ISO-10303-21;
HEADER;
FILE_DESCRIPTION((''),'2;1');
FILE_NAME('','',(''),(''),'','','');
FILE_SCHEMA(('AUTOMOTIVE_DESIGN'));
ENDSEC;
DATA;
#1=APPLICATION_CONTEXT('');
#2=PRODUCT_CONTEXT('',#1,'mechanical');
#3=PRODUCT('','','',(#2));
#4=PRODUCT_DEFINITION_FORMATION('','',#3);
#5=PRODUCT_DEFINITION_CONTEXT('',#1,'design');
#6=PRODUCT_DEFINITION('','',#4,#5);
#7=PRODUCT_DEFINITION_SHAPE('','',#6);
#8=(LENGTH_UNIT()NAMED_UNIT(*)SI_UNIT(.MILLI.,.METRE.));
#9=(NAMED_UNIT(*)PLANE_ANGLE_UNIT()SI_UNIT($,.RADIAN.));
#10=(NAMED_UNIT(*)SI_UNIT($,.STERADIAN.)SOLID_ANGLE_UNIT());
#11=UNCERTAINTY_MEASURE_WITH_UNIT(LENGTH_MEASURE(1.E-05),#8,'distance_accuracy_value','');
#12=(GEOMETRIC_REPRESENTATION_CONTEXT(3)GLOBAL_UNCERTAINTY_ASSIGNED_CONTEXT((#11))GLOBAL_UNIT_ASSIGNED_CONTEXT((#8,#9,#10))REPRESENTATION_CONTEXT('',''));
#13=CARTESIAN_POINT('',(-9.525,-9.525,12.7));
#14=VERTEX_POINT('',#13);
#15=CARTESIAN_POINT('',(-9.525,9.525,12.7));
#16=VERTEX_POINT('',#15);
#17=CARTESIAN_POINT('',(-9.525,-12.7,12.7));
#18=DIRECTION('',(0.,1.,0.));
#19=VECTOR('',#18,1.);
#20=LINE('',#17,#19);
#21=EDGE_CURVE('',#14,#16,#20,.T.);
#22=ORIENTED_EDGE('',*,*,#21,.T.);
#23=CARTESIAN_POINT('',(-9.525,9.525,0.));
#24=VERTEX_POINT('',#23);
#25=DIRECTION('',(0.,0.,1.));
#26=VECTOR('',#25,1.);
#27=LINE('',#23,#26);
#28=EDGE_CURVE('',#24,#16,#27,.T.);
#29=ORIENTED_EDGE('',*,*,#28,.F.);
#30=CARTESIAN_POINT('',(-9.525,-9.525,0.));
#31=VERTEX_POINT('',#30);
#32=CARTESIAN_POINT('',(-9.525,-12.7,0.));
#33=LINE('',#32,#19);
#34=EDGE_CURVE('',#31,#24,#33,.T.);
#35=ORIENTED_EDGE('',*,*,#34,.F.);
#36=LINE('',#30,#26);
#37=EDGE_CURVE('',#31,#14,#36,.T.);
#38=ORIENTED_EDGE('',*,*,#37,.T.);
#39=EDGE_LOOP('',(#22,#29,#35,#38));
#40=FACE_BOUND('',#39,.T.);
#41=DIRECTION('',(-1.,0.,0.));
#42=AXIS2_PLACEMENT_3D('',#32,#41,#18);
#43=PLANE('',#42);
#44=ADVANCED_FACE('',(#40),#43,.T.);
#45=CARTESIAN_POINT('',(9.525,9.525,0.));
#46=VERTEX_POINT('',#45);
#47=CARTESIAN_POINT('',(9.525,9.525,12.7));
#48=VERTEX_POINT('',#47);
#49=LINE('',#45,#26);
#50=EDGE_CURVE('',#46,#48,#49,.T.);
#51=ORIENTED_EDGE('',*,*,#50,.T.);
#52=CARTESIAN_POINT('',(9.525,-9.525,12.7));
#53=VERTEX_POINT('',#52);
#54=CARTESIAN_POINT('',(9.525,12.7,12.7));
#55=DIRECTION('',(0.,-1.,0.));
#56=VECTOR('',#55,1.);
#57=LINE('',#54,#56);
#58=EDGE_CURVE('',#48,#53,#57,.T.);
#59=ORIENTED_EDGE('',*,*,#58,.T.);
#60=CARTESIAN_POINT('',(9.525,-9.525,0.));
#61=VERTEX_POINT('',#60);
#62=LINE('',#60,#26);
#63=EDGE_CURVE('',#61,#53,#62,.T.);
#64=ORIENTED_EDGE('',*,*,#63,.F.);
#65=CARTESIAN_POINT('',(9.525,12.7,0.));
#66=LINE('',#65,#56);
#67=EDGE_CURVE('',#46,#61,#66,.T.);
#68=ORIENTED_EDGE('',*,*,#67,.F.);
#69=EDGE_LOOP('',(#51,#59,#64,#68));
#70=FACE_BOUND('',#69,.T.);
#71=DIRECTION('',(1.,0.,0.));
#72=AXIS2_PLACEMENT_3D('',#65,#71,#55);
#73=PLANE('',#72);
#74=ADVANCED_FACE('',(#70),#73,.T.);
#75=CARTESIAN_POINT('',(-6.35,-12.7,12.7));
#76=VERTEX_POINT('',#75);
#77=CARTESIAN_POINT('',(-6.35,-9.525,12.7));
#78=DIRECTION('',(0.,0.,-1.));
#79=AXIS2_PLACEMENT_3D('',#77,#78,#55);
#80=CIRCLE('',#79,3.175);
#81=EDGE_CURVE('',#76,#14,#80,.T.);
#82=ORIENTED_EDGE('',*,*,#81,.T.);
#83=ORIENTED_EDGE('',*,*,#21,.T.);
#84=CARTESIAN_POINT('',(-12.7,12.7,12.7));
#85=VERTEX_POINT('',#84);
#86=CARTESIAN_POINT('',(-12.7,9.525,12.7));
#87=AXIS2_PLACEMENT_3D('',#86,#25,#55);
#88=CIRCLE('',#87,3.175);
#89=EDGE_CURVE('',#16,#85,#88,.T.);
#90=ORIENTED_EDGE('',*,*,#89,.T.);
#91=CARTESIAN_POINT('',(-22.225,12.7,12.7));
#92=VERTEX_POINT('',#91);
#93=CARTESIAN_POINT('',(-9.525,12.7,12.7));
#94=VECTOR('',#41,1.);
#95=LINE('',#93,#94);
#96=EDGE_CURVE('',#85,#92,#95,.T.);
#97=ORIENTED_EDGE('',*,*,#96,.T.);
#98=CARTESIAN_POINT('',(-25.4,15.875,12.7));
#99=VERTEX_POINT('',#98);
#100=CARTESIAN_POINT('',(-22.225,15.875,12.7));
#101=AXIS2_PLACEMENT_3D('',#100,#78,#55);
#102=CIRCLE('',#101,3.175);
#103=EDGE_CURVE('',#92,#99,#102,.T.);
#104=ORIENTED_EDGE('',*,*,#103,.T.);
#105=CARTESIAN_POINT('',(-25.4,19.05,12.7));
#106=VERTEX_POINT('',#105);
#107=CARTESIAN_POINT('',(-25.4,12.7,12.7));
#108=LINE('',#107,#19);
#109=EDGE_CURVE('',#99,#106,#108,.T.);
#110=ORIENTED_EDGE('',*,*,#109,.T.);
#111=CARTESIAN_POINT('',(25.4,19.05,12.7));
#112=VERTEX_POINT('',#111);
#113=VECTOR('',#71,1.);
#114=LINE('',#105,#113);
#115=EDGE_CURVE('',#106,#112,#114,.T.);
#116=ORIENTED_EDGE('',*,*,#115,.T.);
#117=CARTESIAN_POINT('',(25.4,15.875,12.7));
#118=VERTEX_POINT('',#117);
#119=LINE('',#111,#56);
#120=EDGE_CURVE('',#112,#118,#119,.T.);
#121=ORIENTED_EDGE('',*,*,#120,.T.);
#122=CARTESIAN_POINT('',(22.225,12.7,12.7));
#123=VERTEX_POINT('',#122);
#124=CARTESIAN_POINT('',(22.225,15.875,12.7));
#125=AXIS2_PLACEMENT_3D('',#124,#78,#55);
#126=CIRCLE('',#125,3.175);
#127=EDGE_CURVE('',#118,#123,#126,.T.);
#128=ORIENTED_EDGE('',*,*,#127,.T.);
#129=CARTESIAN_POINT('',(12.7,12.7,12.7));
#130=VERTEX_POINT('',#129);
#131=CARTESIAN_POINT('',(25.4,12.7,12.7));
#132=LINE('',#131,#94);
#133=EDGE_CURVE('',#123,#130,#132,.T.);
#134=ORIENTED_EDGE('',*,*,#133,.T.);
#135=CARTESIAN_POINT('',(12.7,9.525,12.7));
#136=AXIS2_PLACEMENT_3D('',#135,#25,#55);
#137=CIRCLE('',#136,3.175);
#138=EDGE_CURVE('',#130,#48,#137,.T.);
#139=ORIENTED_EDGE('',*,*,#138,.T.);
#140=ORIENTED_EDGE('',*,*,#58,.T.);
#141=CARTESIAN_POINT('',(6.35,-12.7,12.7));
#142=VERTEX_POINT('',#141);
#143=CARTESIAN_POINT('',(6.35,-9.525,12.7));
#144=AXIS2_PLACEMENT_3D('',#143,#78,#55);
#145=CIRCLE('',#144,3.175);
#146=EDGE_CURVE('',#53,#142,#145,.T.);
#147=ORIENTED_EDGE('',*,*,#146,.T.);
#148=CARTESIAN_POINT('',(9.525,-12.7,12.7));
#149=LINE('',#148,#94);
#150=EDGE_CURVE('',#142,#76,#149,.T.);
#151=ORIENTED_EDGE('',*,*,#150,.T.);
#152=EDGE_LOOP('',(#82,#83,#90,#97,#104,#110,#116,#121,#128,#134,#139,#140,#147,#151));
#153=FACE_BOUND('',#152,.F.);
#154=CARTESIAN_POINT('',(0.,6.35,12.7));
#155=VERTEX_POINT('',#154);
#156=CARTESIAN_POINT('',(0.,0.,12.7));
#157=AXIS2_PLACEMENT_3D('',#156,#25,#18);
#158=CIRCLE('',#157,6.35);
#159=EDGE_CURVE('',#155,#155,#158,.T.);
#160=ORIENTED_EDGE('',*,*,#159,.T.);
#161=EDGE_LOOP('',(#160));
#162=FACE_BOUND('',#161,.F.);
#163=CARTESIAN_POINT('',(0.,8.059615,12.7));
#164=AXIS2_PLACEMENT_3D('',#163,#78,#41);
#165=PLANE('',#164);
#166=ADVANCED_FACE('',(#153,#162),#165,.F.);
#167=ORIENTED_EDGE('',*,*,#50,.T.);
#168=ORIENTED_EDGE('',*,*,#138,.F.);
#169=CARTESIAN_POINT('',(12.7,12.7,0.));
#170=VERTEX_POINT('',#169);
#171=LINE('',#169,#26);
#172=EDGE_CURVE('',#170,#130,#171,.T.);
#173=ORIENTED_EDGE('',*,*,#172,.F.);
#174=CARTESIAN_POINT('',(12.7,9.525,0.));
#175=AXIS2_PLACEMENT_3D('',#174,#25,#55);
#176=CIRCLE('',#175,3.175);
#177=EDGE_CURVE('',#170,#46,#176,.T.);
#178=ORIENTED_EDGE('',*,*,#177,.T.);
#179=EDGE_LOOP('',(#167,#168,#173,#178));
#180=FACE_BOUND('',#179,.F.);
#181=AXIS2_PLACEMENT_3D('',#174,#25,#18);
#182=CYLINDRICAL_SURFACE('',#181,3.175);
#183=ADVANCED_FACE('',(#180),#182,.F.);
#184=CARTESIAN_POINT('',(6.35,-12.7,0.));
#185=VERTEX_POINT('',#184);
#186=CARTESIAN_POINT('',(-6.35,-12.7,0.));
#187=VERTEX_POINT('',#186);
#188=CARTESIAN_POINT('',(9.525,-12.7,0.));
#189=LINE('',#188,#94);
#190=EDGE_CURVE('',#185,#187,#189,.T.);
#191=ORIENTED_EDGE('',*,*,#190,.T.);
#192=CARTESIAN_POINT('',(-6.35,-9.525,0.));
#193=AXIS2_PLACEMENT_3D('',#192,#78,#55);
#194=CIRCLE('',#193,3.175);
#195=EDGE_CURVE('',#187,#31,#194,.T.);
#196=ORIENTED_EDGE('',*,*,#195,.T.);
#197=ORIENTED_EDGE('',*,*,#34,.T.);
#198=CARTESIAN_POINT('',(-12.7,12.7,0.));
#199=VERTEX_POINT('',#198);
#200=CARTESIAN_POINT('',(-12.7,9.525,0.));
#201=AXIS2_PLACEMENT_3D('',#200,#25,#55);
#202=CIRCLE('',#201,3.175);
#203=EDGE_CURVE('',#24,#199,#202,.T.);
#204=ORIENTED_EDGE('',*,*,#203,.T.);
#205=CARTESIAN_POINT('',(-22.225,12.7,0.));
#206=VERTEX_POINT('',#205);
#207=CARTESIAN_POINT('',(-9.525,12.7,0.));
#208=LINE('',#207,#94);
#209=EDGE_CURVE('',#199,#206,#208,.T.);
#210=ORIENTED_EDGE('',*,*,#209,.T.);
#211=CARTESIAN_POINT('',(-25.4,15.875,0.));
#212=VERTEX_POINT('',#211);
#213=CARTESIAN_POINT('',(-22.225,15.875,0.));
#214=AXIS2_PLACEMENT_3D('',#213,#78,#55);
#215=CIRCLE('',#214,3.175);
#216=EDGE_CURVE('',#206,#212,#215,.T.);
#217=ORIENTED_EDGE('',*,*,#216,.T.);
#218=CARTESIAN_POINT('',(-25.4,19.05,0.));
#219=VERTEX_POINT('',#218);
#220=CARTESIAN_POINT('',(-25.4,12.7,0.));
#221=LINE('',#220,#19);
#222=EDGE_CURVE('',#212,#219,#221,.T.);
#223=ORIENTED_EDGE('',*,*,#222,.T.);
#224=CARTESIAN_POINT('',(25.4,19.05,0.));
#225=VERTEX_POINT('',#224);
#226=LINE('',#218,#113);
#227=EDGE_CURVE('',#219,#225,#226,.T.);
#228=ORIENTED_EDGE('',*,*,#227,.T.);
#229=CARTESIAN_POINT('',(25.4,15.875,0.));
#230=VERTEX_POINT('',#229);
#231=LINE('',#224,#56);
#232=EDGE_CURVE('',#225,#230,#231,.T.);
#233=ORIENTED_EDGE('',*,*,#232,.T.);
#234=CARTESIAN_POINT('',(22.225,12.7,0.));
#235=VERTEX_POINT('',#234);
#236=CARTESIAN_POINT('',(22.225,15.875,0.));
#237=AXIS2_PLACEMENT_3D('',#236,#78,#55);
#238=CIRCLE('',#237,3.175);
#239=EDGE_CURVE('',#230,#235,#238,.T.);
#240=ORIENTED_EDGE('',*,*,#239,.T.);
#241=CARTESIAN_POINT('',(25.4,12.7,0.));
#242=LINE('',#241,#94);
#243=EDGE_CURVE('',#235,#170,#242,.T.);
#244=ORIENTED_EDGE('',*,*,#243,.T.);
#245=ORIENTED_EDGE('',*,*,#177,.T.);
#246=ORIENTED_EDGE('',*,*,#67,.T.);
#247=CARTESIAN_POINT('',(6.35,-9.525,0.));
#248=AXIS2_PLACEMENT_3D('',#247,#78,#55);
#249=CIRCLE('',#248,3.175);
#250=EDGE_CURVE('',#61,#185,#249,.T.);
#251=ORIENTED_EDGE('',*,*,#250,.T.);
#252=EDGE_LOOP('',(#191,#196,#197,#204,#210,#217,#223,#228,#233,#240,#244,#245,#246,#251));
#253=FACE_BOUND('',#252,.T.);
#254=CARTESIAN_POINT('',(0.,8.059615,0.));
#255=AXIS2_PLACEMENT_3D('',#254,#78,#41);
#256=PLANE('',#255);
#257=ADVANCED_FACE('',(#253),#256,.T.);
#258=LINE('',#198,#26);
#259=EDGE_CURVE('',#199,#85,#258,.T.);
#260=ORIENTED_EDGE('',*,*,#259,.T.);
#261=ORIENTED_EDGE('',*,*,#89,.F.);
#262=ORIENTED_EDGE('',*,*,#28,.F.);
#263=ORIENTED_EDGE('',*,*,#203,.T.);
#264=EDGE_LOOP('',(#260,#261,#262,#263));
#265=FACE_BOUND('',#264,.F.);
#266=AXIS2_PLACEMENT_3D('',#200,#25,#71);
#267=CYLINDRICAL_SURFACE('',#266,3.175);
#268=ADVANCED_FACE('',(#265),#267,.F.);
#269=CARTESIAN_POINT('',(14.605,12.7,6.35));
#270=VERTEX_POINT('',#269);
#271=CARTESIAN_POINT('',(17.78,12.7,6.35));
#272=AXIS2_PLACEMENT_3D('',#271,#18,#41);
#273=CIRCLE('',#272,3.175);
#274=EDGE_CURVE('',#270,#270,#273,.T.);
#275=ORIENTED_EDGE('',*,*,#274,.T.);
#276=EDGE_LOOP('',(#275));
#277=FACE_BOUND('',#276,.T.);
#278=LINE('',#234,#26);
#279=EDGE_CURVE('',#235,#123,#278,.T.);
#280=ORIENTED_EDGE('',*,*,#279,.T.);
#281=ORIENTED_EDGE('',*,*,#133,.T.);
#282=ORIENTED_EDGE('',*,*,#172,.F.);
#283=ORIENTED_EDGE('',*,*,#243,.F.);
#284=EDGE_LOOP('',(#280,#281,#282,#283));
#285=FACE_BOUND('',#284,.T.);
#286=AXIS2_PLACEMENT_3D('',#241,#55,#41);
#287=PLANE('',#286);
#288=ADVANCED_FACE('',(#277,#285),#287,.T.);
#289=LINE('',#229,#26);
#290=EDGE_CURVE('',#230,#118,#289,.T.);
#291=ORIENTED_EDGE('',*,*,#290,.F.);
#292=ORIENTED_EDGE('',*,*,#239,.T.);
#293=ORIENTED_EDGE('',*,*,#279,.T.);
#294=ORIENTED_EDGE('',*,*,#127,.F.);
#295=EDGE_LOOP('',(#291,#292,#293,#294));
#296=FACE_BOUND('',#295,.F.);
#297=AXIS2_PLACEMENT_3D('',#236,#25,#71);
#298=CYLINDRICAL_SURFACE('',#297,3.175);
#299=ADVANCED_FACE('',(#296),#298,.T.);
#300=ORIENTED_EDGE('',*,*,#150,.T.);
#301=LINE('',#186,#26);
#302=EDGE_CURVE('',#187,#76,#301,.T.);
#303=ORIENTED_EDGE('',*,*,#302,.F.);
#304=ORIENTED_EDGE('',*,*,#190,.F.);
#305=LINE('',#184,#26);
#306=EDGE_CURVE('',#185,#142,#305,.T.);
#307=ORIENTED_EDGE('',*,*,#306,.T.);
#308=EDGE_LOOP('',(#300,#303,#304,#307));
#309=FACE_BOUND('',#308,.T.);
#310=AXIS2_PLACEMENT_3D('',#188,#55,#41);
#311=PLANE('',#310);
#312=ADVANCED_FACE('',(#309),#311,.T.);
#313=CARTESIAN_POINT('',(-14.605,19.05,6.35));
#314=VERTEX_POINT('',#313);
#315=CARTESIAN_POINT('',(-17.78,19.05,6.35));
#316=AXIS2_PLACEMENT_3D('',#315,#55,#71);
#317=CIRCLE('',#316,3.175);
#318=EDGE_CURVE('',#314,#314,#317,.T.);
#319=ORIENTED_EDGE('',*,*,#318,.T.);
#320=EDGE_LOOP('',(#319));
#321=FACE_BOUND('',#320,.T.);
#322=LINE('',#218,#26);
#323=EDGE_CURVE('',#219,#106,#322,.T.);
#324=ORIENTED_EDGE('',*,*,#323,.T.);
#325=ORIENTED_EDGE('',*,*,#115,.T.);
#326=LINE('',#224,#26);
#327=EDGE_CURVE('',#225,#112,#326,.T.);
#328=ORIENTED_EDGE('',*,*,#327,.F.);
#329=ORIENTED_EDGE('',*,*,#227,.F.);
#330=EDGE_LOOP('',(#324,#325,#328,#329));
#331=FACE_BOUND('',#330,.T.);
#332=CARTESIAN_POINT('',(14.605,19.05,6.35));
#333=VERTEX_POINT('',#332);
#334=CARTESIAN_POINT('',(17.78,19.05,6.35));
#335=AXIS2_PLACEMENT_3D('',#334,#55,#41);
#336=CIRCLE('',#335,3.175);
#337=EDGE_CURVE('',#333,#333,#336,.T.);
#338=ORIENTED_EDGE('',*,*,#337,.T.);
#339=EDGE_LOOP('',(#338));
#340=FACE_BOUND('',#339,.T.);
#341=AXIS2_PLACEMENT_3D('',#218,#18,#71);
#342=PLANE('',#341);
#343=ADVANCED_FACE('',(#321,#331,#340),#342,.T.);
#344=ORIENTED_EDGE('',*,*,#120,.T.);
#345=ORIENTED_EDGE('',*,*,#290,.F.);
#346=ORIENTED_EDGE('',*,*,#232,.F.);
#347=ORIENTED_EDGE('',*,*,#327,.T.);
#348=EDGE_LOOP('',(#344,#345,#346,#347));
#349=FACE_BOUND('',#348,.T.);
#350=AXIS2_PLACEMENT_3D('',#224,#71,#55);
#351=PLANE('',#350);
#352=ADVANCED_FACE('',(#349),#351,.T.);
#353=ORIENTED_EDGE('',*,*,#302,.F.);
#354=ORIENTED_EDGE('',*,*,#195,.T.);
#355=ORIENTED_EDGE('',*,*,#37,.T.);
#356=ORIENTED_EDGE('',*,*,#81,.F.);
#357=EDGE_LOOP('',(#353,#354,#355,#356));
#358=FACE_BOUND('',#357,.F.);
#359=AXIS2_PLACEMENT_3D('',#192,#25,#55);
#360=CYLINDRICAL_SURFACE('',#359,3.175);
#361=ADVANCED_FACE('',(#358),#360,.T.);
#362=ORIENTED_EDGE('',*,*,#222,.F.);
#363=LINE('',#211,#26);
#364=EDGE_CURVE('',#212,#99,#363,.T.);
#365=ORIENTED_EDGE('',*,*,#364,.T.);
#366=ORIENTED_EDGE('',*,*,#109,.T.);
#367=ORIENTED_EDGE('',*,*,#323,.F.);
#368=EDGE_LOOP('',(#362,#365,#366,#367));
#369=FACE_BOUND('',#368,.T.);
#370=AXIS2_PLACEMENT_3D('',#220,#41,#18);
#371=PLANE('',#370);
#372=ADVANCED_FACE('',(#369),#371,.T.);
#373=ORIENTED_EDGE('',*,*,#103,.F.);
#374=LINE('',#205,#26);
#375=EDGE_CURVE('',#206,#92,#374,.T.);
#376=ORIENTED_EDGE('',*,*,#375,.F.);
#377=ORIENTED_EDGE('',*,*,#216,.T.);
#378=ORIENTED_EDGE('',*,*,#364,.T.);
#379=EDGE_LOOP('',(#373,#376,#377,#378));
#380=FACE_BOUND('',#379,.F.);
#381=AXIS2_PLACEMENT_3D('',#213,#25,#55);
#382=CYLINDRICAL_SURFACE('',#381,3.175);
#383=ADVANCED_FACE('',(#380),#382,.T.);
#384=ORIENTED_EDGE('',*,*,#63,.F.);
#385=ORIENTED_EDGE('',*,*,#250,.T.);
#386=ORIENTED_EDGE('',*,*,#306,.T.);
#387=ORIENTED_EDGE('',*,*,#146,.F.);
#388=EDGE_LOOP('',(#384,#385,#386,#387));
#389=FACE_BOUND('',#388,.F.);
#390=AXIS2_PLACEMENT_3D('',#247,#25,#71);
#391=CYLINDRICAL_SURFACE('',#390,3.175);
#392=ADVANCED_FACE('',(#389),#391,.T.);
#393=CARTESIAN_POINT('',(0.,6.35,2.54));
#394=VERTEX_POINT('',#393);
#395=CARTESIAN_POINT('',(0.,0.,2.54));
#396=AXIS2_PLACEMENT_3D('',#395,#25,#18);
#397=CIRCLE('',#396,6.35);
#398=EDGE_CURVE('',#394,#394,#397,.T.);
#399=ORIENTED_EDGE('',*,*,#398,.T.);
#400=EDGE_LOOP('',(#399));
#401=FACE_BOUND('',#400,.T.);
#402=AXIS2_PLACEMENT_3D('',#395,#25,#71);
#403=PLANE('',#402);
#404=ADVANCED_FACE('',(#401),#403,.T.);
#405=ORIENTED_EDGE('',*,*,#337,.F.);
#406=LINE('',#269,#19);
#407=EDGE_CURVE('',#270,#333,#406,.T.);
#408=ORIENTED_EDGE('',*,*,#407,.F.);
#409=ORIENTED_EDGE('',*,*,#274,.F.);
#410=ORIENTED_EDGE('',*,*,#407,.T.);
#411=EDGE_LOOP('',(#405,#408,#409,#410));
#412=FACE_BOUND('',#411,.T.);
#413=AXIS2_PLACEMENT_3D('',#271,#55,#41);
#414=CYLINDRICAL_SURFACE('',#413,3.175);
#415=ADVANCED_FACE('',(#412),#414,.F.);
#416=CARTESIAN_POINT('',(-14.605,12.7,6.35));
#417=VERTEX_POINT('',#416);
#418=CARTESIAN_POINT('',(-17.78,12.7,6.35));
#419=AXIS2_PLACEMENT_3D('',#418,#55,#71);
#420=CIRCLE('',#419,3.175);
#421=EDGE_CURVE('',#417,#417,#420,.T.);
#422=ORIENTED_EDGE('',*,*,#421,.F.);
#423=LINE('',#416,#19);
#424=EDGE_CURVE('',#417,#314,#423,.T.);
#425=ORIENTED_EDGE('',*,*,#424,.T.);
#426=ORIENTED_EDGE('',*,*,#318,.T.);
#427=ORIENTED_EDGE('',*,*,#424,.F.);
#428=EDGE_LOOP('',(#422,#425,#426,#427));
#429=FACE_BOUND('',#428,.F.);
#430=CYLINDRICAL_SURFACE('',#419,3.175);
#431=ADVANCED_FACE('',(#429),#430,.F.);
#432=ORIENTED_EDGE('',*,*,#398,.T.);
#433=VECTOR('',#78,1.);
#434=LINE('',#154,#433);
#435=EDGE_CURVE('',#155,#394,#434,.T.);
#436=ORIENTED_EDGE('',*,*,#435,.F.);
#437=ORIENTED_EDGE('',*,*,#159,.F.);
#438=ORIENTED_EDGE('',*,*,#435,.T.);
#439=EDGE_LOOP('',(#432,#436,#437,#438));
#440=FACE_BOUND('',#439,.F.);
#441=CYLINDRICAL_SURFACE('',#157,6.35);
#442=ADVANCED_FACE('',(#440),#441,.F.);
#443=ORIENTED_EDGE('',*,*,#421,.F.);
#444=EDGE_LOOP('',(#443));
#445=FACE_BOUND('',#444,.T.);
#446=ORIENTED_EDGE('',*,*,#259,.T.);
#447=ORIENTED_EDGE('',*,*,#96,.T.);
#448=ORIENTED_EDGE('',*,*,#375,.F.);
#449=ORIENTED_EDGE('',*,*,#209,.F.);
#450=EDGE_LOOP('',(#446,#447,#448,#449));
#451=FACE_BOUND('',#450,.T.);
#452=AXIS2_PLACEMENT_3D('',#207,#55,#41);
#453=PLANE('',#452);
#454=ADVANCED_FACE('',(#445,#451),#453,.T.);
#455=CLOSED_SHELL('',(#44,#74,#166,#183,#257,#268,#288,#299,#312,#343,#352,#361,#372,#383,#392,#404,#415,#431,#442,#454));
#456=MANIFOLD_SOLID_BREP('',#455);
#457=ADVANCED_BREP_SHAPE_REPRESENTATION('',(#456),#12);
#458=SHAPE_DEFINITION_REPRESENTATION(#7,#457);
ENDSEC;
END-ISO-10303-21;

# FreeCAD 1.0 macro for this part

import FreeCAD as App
import Part
import Sketcher
from FreeCAD import Vector
Q = App.Units.Quantity


def edges_at(feature, points):
    """Names of the edges that pass closest to the given points."""
    edges = feature.Shape.Edges
    near = lambda p: min(range(len(edges)), key=lambda i: edges[i].distToShape(Part.Vertex(*p))[0])
    return sorted({f"Edge{near(p) + 1}" for p in points})

doc = App.newDocument("Part")
body = doc.addObject("PartDesign::Body", "Body")

sketch1 = body.newObject("Sketcher::SketchObject", "Sketch")
sketch1.AttachmentSupport = (doc.getObject("XY_Plane"), [""])
sketch1.MapMode = "FlatFace"
sketch1.addGeometry([
    Part.LineSegment(Vector(25, 19, 0), Vector(-25, 19, 0)),
    Part.LineSegment(Vector(-25, 19, 0), Vector(-25, 13, 0)),
    Part.LineSegment(Vector(-25, 13, 0), Vector(-10, 13, 0)),
    Part.LineSegment(Vector(-10, 13, 0), Vector(-10, -13, 0)),
    Part.LineSegment(Vector(-10, -13, 0), Vector(10, -13, 0)),
    Part.LineSegment(Vector(10, -13, 0), Vector(10, 13, 0)),
    Part.LineSegment(Vector(10, 13, 0), Vector(25, 13, 0)),
    Part.LineSegment(Vector(25, 13, 0), Vector(25, 19, 0)),
], False)
sketch1.addConstraint([
    Sketcher.Constraint("Coincident", 0, 2, 1, 1),
    Sketcher.Constraint("Coincident", 1, 2, 2, 1),
    Sketcher.Constraint("Coincident", 2, 2, 3, 1),
    Sketcher.Constraint("Coincident", 3, 2, 4, 1),
    Sketcher.Constraint("Coincident", 4, 2, 5, 1),
    Sketcher.Constraint("Coincident", 5, 2, 6, 1),
    Sketcher.Constraint("Coincident", 6, 2, 7, 1),
    Sketcher.Constraint("Coincident", 7, 2, 0, 1),
    Sketcher.Constraint("Horizontal", 0),
    Sketcher.Constraint("Vertical", 1),
    Sketcher.Constraint("Horizontal", 2),
    Sketcher.Constraint("Vertical", 3),
    Sketcher.Constraint("Horizontal", 4),
    Sketcher.Constraint("Vertical", 5),
    Sketcher.Constraint("Horizontal", 6),
    Sketcher.Constraint("Vertical", 7),
    Sketcher.Constraint("Symmetric", 2, 2, 4, 2, -1, 1),
    Sketcher.Constraint("Symmetric", 1, 2, 6, 2, -2),
    Sketcher.Constraint("DistanceY", 3, 2, 3, 1, Q("1 in")),
    Sketcher.Constraint("DistanceX", 0, 2, -1, 1, Q("1 in")),
    Sketcher.Constraint("DistanceX", 2, 2, -1, 1, Q("0.375 in")),
    Sketcher.Constraint("DistanceY", 1, 2, 1, 1, Q("0.25 in")),
])
pad1 = body.newObject("PartDesign::Pad", "Pad")
pad1.Profile = sketch1
pad1.Length = Q("0.5 in")
doc.recompute()

fillet = body.newObject("PartDesign::Fillet", "Fillet")
fillet.Base = (pad1, edges_at(pad1, [
    (9.525, 12.7, 6.35),
    (9.525, -12.7, 6.35),
    (-9.525, -12.7, 6.35),
    (25.4, 12.7, 6.35),
    (-9.525, 12.7, 6.35),
    (-25.4, 12.7, 6.35),
]))
fillet.Radius = Q("0.125 in")

sketch2 = body.newObject("Sketcher::SketchObject", "Sketch001")
sketch2.AttachmentSupport = (doc.getObject("XY_Plane"), [""])
sketch2.MapMode = "FlatFace"
sketch2.AttachmentOffset = App.Placement(Vector(0, 0, 0.5 * 25.4), App.Rotation())
sketch2.addGeometry(Part.Circle(Vector(0, 0, 0), Vector(0, 0, 1), 6), False)
sketch2.addConstraint([
    Sketcher.Constraint("Coincident", 0, 3, -1, 1),
    Sketcher.Constraint("Diameter", 0, Q("0.5 in")),
])
pocket1 = body.newObject("PartDesign::Pocket", "Pocket")
pocket1.Profile = sketch2
pocket1.Length = Q("0.4 in")

sketch3 = body.newObject("Sketcher::SketchObject", "Sketch002")
sketch3.AttachmentSupport = (doc.getObject("XZ_Plane"), [""])
sketch3.MapMode = "FlatFace"
sketch3.AttachmentOffset = App.Placement(Vector(0, 0, -0.5 * 25.4), App.Rotation())
sketch3.addGeometry(Part.Circle(Vector(-17.8, 6.3, 0), Vector(0, 0, 1), 3.2), False)
sketch3.addConstraint([
    Sketcher.Constraint("Diameter", 0, Q("0.25 in")),
    Sketcher.Constraint("DistanceX", 0, 3, -1, 1, Q("0.7 in")),
    Sketcher.Constraint("DistanceY", -1, 1, 0, 3, Q("0.25 in")),
])
pocket2 = body.newObject("PartDesign::Pocket", "Pocket001")
pocket2.Profile = sketch3
pocket2.Length = Q("1 in")
doc.recompute()

mirrored = body.newObject("PartDesign::Mirrored", "Mirrored")
mirrored.Originals = [pocket2]
mirrored.MirrorPlane = (doc.getObject("YZ_Plane"), [""])
body.Tip = mirrored

doc.recompute()
